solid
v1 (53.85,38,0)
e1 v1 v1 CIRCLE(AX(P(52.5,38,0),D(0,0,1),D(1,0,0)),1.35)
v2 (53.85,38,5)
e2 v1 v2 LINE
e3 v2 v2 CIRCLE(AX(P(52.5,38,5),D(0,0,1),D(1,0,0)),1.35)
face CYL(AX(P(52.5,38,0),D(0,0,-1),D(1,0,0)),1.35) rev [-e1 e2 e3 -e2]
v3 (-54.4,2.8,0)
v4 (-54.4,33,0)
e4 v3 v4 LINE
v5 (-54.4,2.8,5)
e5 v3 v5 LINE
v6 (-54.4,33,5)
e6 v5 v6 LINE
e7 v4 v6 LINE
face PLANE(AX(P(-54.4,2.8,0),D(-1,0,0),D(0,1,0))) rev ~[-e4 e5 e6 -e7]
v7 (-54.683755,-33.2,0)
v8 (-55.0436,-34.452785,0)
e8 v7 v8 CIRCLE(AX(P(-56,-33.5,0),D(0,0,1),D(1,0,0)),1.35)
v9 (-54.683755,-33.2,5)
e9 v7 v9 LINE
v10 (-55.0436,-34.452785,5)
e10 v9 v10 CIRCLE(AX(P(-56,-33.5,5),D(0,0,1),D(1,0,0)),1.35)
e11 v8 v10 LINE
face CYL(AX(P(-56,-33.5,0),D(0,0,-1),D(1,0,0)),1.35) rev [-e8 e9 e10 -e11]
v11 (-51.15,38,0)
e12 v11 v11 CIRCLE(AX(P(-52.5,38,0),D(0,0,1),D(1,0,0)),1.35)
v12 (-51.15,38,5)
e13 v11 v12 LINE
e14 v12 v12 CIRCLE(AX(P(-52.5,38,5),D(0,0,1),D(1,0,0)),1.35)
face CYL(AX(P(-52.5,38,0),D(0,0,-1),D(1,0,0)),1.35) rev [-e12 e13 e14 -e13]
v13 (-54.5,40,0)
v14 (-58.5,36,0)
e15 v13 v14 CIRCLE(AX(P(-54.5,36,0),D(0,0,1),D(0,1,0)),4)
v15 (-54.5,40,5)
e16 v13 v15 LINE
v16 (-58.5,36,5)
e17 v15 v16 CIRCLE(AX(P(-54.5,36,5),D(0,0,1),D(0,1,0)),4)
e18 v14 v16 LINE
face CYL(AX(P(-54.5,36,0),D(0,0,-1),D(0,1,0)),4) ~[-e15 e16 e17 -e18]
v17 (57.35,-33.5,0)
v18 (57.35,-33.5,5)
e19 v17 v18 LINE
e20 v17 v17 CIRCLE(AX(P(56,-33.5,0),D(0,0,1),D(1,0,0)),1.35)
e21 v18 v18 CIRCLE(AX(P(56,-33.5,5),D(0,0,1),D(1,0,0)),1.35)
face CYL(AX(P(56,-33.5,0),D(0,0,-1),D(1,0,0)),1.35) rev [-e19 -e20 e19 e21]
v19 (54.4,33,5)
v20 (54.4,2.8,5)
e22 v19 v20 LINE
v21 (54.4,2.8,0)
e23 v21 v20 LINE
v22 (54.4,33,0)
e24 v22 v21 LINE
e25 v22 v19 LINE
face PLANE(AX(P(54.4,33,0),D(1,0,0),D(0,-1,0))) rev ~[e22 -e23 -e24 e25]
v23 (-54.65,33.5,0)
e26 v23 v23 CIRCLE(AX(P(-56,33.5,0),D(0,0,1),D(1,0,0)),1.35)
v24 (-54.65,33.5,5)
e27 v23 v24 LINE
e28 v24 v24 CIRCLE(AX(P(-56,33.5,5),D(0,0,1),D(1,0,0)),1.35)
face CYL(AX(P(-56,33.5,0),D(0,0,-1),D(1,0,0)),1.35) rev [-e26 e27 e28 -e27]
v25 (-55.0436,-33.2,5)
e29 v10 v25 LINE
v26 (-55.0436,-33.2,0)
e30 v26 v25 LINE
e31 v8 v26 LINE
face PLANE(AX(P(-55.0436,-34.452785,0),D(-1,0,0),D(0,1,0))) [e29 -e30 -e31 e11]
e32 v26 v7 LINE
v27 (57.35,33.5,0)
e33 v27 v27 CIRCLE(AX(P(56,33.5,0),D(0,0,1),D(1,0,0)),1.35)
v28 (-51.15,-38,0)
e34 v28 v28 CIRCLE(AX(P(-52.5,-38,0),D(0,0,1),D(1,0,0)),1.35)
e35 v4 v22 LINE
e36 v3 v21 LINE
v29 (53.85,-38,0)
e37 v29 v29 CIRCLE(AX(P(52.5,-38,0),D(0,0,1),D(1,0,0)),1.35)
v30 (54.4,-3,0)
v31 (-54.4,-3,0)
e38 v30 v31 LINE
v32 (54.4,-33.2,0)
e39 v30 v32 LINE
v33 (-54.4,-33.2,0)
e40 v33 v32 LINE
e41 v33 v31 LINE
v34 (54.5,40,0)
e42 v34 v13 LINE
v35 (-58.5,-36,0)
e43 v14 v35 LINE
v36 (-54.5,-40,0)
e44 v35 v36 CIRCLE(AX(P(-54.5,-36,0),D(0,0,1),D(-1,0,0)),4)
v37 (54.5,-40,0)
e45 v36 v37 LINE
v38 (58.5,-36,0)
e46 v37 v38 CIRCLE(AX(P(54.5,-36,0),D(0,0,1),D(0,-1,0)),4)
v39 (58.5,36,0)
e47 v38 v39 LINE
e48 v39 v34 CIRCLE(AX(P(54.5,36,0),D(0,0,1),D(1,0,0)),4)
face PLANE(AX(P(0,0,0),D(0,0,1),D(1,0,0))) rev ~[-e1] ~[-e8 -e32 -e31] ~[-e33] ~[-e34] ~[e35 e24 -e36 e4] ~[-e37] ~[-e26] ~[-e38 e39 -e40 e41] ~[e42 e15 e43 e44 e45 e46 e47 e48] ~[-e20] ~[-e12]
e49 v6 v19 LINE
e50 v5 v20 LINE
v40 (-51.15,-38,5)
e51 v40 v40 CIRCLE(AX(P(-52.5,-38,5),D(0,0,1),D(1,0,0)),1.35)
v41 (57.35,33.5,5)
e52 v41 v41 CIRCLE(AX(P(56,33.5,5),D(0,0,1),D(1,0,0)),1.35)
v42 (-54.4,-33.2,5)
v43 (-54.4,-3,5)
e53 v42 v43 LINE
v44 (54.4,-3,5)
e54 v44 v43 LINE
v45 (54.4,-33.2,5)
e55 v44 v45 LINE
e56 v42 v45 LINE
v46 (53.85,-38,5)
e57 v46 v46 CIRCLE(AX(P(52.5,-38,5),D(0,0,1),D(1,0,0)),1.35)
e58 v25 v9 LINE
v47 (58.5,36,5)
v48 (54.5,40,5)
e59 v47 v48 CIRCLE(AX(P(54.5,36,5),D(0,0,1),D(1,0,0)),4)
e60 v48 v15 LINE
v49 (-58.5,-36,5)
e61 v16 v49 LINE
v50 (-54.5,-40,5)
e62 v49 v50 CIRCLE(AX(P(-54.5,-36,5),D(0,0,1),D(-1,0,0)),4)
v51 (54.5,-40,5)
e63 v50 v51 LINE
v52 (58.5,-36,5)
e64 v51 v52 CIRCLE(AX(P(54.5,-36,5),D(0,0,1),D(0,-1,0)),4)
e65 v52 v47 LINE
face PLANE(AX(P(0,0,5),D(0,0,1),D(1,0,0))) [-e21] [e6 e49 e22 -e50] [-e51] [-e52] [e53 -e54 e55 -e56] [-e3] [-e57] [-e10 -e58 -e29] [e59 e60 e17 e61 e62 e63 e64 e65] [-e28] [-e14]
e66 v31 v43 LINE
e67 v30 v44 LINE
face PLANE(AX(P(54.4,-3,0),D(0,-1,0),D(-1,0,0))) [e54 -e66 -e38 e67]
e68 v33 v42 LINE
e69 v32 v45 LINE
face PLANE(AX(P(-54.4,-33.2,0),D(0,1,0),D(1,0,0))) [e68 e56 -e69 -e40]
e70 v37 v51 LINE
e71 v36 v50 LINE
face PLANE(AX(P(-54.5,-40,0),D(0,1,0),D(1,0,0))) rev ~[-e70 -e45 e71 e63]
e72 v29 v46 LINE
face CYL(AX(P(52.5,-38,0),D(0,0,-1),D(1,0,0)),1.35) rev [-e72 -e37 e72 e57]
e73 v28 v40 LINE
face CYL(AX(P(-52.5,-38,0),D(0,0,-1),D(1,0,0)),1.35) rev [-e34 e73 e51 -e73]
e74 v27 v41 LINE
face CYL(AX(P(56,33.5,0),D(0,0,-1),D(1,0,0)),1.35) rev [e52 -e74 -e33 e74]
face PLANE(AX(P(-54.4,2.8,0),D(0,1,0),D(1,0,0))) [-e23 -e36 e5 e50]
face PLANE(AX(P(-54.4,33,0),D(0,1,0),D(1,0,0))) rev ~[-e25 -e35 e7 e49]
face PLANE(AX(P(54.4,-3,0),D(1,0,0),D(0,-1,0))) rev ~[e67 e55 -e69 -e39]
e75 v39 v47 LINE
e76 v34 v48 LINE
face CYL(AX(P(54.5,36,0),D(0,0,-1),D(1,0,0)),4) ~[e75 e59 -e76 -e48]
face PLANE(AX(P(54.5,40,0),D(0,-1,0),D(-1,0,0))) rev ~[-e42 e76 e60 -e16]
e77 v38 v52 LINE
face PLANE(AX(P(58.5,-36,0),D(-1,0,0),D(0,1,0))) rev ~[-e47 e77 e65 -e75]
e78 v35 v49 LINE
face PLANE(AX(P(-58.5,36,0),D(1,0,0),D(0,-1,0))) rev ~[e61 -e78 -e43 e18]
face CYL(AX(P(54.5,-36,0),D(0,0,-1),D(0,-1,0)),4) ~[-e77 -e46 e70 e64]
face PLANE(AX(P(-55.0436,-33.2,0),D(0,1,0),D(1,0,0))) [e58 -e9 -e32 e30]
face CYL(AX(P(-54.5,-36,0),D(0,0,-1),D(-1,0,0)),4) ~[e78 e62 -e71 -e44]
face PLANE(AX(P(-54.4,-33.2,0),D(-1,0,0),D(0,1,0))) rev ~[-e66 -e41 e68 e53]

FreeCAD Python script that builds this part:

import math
import FreeCAD as App
import Part
import Sketcher
from FreeCAD import Vector
Q = App.Units.Quantity

doc = App.newDocument("Part")
body = doc.addObject("PartDesign::Body", "Body")

sketch1 = body.newObject("Sketcher::SketchObject", "Sketch")
sketch1.AttachmentSupport = (doc.getObject("XY_Plane"), [""])
sketch1.MapMode = "FlatFace"
sketch1.addGeometry(Part.LineSegment(Vector(-58.5, 36, 0), Vector(-58.5, -36, 0)), False)
sketch1.addGeometry(Part.ArcOfCircle(Part.Circle(Vector(-54.5, -36, 0), Vector(0, 0, 1), 4), math.radians(180), math.radians(270)), False)
sketch1.addGeometry(Part.LineSegment(Vector(-54.5, -40, 0), Vector(54.5, -40, 0)), False)
sketch1.addGeometry(Part.ArcOfCircle(Part.Circle(Vector(54.5, -36, 0), Vector(0, 0, 1), 4), math.radians(-90), math.radians(0)), False)
sketch1.addGeometry(Part.LineSegment(Vector(58.5, -36, 0), Vector(58.5, 36, 0)), False)
sketch1.addGeometry(Part.ArcOfCircle(Part.Circle(Vector(54.5, 36, 0), Vector(0, 0, 1), 4), math.radians(0), math.radians(90)), False)
sketch1.addGeometry(Part.LineSegment(Vector(54.5, 40, 0), Vector(-54.5, 40, 0)), False)
sketch1.addGeometry(Part.ArcOfCircle(Part.Circle(Vector(-54.5, 36, 0), Vector(0, 0, 1), 4), math.radians(90), math.radians(180)), False)
sketch1.addGeometry(Part.LineSegment(Vector(-55.0436, -33.2, 0), Vector(-55.0436, -34.452785, 0)), False)
sketch1.addGeometry(Part.ArcOfCircle(Part.Circle(Vector(-56, -33.5, 0), Vector(0, 0, 1), 1.35), math.radians(12.839588), math.radians(315.108492)), False)
sketch1.addGeometry(Part.LineSegment(Vector(-54.683755, -33.2, 0), Vector(-55.0436, -33.2, 0)), False)
sketch1.addGeometry(Part.Circle(Vector(-52.5, -38, 0), Vector(0, 0, 1), 1.35), False)
sketch1.addGeometry(Part.Circle(Vector(52.5, -38, 0), Vector(0, 0, 1), 1.35), False)
sketch1.addGeometry(Part.Circle(Vector(56, -33.5, 0), Vector(0, 0, 1), 1.35), False)
sketch1.addGeometry(Part.Circle(Vector(52.5, 38, 0), Vector(0, 0, 1), 1.35), False)
sketch1.addGeometry(Part.Circle(Vector(-52.5, 38, 0), Vector(0, 0, 1), 1.35), False)
sketch1.addGeometry(Part.LineSegment(Vector(54.4, -3, 0), Vector(54.4, -33.2, 0)), False)
sketch1.addGeometry(Part.LineSegment(Vector(54.4, -33.2, 0), Vector(-54.4, -33.2, 0)), False)
sketch1.addGeometry(Part.LineSegment(Vector(-54.4, -33.2, 0), Vector(-54.4, -3, 0)), False)
sketch1.addGeometry(Part.LineSegment(Vector(-54.4, -3, 0), Vector(54.4, -3, 0)), False)
sketch1.addGeometry(Part.LineSegment(Vector(54.4, 33, 0), Vector(54.4, 2.8, 0)), False)
sketch1.addGeometry(Part.LineSegment(Vector(54.4, 2.8, 0), Vector(-54.4, 2.8, 0)), False)
sketch1.addGeometry(Part.LineSegment(Vector(-54.4, 2.8, 0), Vector(-54.4, 33, 0)), False)
sketch1.addGeometry(Part.LineSegment(Vector(-54.4, 33, 0), Vector(54.4, 33, 0)), False)
sketch1.addGeometry(Part.Circle(Vector(56, 33.5, 0), Vector(0, 0, 1), 1.35), False)
sketch1.addGeometry(Part.Circle(Vector(-56, 33.5, 0), Vector(0, 0, 1), 1.35), False)
sketch1.addConstraint(Sketcher.Constraint("Tangent", 0, 2, 1, 1))
sketch1.addConstraint(Sketcher.Constraint("Tangent", 1, 2, 2, 1))
sketch1.addConstraint(Sketcher.Constraint("Tangent", 2, 2, 3, 1))
sketch1.addConstraint(Sketcher.Constraint("Tangent", 3, 2, 4, 1))
sketch1.addConstraint(Sketcher.Constraint("Tangent", 4, 2, 5, 1))
sketch1.addConstraint(Sketcher.Constraint("Tangent", 5, 2, 6, 1))
sketch1.addConstraint(Sketcher.Constraint("Tangent", 6, 2, 7, 1))
sketch1.addConstraint(Sketcher.Constraint("Tangent", 7, 2, 0, 1))
sketch1.addConstraint(Sketcher.Constraint("Coincident", 8, 2, 9, 2))
sketch1.addConstraint(Sketcher.Constraint("Coincident", 9, 1, 10, 1))
sketch1.addConstraint(Sketcher.Constraint("Coincident", 10, 2, 8, 1))
sketch1.addConstraint(Sketcher.Constraint("Coincident", 16, 2, 17, 1))
sketch1.addConstraint(Sketcher.Constraint("Coincident", 17, 2, 18, 1))
sketch1.addConstraint(Sketcher.Constraint("Coincident", 18, 2, 19, 1))
sketch1.addConstraint(Sketcher.Constraint("Coincident", 19, 2, 16, 1))
sketch1.addConstraint(Sketcher.Constraint("Coincident", 20, 2, 21, 1))
sketch1.addConstraint(Sketcher.Constraint("Coincident", 21, 2, 22, 1))
sketch1.addConstraint(Sketcher.Constraint("Coincident", 22, 2, 23, 1))
sketch1.addConstraint(Sketcher.Constraint("Coincident", 23, 2, 20, 1))
sketch1.addConstraint(Sketcher.Constraint("Vertical", 0))
sketch1.addConstraint(Sketcher.Constraint("Horizontal", 2))
sketch1.addConstraint(Sketcher.Constraint("Vertical", 4))
sketch1.addConstraint(Sketcher.Constraint("Horizontal", 6))
sketch1.addConstraint(Sketcher.Constraint("Vertical", 8))
sketch1.addConstraint(Sketcher.Constraint("Horizontal", 10))
sketch1.addConstraint(Sketcher.Constraint("Vertical", 16))
sketch1.addConstraint(Sketcher.Constraint("Horizontal", 17))
sketch1.addConstraint(Sketcher.Constraint("Vertical", 18))
sketch1.addConstraint(Sketcher.Constraint("Horizontal", 19))
sketch1.addConstraint(Sketcher.Constraint("Vertical", 20))
sketch1.addConstraint(Sketcher.Constraint("Horizontal", 21))
sketch1.addConstraint(Sketcher.Constraint("Vertical", 22))
sketch1.addConstraint(Sketcher.Constraint("Horizontal", 23))
sketch1.addConstraint(Sketcher.Constraint("Equal", 1, 3))
sketch1.addConstraint(Sketcher.Constraint("Equal", 3, 5))
sketch1.addConstraint(Sketcher.Constraint("Equal", 5, 7))
sketch1.addConstraint(Sketcher.Constraint("Equal", 9, 11))
sketch1.addConstraint(Sketcher.Constraint("Equal", 11, 12))
sketch1.addConstraint(Sketcher.Constraint("Equal", 12, 13))
sketch1.addConstraint(Sketcher.Constraint("Equal", 13, 14))
sketch1.addConstraint(Sketcher.Constraint("Equal", 14, 15))
sketch1.addConstraint(Sketcher.Constraint("Equal", 15, 24))
sketch1.addConstraint(Sketcher.Constraint("Equal", 24, 25))
sketch1.addConstraint(Sketcher.Constraint("Symmetric", 1, 3, 5, 3, -1, 1))
sketch1.addConstraint(Sketcher.Constraint("Symmetric", 11, 3, 14, 3, -1, 1))
sketch1.addConstraint(Sketcher.Constraint("Symmetric", 12, 3, 15, 3, -1, 1))
sketch1.addConstraint(Sketcher.Constraint("Symmetric", 9, 3, 24, 3, -1, 1))
sketch1.addConstraint(Sketcher.Constraint("Symmetric", 13, 3, 25, 3, -1, 1))
sketch1.addConstraint(Sketcher.Constraint("Symmetric", 11, 3, 12, 3, -2))
sketch1.addConstraint(Sketcher.Constraint("Symmetric", 9, 3, 13, 3, -2))
sketch1.addConstraint(Sketcher.Constraint("Horizontal", 10, 2, 16, 2))
sketch1.addConstraint(Sketcher.Constraint("Vertical", 19, 2, 20, 2))
sketch1.addConstraint(Sketcher.Constraint("Vertical", 18, 2, 21, 2))
sketch1.addConstraint(Sketcher.Constraint("Equal", 18, 20))
sketch1.addConstraint(Sketcher.Constraint("Radius", 1, Q("4 mm")))
sketch1.addConstraint(Sketcher.Constraint("Diameter", 11, Q("2.7 mm")))
sketch1.addConstraint(Sketcher.Constraint("DistanceX", 2, 1, 2, 2, Q("109 mm")))
sketch1.addConstraint(Sketcher.Constraint("DistanceY", 0, 2, 0, 1, Q("72 mm")))
sketch1.addConstraint(Sketcher.Constraint("DistanceX", 17, 2, 17, 1, Q("108.8 mm")))
sketch1.addConstraint(Sketcher.Constraint("DistanceY", 16, 2, 16, 1, Q("30.2 mm")))
sketch1.addConstraint(Sketcher.Constraint("DistanceX", 9, 3, -1, 1, Q("56 mm")))
sketch1.addConstraint(Sketcher.Constraint("DistanceY", 11, 3, -1, 1, Q("38 mm")))
sketch1.addConstraint(Sketcher.Constraint("DistanceY", 18, 2, -1, 1, Q("3 mm")))
sketch1.addConstraint(Sketcher.Constraint("DistanceY", -1, 1, 22, 2, Q("33 mm")))
sketch1.addConstraint(Sketcher.Constraint("DistanceX", 1, 3, 11, 3, Q("2 mm")))
sketch1.addConstraint(Sketcher.Constraint("DistanceY", 13, 3, 24, 3, Q("67 mm")))
sketch1.addConstraint(Sketcher.Constraint("DistanceX", -1, 1, 16, 2, Q("54.4 mm")))
sketch1.addConstraint(Sketcher.Constraint("DistanceX", 10, 2, 10, 1, Q("0.3598 mm")))
pad1 = body.newObject("PartDesign::Pad", "Pad")
pad1.Profile = sketch1
pad1.Length = 5

doc.recompute()
